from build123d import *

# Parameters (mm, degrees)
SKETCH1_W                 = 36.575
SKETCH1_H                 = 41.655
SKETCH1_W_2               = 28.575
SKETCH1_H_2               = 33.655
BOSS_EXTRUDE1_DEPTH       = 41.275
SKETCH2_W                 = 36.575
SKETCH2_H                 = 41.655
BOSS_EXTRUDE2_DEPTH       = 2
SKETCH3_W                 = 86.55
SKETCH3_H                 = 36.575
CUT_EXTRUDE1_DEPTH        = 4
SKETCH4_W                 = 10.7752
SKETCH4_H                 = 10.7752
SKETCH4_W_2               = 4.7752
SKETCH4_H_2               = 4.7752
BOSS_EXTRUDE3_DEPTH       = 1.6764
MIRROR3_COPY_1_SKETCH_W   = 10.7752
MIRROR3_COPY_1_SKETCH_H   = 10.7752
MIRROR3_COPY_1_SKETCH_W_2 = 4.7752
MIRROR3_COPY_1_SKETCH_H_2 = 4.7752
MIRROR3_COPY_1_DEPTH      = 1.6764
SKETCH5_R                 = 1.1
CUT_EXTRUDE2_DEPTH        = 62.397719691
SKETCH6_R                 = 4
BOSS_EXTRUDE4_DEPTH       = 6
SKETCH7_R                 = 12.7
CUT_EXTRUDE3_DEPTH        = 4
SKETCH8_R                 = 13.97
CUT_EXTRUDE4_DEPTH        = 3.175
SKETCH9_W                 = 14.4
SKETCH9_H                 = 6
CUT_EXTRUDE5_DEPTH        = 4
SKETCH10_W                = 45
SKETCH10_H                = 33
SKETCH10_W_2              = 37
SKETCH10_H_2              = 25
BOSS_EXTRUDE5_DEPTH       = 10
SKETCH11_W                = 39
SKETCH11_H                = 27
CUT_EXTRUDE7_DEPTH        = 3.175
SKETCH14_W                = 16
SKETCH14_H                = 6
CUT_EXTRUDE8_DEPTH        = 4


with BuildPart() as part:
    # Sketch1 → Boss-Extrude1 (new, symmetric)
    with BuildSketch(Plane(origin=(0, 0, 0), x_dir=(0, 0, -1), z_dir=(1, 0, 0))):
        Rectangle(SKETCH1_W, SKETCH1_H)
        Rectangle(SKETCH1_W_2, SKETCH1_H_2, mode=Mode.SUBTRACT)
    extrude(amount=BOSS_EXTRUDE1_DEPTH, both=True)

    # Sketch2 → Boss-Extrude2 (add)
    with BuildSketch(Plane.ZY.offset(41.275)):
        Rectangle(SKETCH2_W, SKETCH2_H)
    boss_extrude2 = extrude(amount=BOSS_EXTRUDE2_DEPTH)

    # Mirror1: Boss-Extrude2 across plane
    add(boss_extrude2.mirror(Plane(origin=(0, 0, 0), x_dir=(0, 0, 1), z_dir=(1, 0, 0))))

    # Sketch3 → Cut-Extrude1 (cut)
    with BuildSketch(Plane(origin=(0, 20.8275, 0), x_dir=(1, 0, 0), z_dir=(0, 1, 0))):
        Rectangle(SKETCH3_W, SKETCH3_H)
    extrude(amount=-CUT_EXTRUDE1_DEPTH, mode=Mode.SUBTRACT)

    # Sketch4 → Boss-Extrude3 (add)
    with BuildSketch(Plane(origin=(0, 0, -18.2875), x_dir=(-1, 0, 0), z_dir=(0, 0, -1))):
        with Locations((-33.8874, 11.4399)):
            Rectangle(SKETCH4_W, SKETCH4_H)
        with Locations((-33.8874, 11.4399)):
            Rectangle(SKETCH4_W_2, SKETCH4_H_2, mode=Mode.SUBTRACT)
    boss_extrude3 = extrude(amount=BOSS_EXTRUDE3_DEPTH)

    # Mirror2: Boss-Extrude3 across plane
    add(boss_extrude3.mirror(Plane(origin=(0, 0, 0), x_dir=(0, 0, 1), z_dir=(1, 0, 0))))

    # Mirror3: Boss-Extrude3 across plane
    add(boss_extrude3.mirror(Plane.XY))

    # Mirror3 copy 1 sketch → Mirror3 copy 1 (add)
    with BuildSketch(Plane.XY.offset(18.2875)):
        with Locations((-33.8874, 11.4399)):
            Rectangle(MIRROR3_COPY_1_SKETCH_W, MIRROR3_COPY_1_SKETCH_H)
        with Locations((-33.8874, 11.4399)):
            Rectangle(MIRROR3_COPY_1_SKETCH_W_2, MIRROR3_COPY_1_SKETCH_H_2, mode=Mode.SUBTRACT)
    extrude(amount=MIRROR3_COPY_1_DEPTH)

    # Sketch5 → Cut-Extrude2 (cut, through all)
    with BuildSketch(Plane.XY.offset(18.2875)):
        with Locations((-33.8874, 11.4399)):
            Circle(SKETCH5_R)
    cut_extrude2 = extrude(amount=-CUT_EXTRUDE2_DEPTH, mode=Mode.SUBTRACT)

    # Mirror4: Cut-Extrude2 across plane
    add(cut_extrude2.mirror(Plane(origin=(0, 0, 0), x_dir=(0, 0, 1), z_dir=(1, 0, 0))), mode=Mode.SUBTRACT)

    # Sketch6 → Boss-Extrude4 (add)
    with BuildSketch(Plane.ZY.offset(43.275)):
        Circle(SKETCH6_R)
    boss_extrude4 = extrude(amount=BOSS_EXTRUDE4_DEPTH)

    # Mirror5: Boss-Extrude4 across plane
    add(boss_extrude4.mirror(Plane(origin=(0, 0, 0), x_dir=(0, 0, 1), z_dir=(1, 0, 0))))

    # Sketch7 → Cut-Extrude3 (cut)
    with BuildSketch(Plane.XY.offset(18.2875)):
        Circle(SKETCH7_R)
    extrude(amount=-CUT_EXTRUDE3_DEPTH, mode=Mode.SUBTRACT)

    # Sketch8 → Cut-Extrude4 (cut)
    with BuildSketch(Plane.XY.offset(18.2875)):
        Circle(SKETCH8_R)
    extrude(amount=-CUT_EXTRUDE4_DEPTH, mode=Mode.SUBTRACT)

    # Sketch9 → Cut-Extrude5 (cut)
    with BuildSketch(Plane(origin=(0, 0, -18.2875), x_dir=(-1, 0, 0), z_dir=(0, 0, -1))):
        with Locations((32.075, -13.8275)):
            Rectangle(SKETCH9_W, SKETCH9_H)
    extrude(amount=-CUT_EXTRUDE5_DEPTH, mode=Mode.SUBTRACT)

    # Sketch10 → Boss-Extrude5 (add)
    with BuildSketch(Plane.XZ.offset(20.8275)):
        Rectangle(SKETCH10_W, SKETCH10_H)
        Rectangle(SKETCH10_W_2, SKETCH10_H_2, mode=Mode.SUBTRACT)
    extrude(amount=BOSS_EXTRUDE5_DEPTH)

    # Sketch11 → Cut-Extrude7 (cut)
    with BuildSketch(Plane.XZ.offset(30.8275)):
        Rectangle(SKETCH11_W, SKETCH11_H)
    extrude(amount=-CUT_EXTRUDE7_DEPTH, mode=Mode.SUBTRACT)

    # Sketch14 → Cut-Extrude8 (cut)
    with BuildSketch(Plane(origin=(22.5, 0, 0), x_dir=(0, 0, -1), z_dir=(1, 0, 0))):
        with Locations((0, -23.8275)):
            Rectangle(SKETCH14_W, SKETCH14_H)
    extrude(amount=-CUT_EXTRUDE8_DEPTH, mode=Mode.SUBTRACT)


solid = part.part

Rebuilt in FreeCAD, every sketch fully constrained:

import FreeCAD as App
import Part
import Sketcher
Q = App.Units.Quantity

doc = App.newDocument("Part")
body = doc.addObject("PartDesign::Body", "Body")

# Sketch on YZ plane
sketch1 = body.newObject("Sketcher::SketchObject", "Sketch")
sketch1.AttachmentSupport = (doc.getObject("YZ_Plane"), [""])
sketch1.MapMode = "FlatFace"
sketch1.addGeometry([
    Part.LineSegment(App.Vector(20.8275, 18.2875, 0), App.Vector(-20.8275, 18.2875, 0)),  # 0
    Part.LineSegment(App.Vector(-20.8275, 18.2875, 0), App.Vector(-20.8275, -18.2875, 0)),  # 1
    Part.LineSegment(App.Vector(-20.8275, -18.2875, 0), App.Vector(20.8275, -18.2875, 0)),  # 2
    Part.LineSegment(App.Vector(20.8275, -18.2875, 0), App.Vector(20.8275, 18.2875, 0)),  # 3
    Part.LineSegment(App.Vector(-16.8275, -14.2875, 0), App.Vector(-16.8275, 14.2875, 0)),  # 4
    Part.LineSegment(App.Vector(-16.8275, 14.2875, 0), App.Vector(16.8275, 14.2875, 0)),  # 5
    Part.LineSegment(App.Vector(16.8275, 14.2875, 0), App.Vector(16.8275, -14.2875, 0)),  # 6
    Part.LineSegment(App.Vector(16.8275, -14.2875, 0), App.Vector(-16.8275, -14.2875, 0)),  # 7
], False)
sketch1.addConstraint([
    Sketcher.Constraint("Coincident", 0, 2, 1, 1),
    Sketcher.Constraint("Coincident", 1, 2, 2, 1),
    Sketcher.Constraint("Coincident", 2, 2, 3, 1),
    Sketcher.Constraint("Coincident", 3, 2, 0, 1),
    Sketcher.Constraint("Coincident", 4, 2, 5, 1),
    Sketcher.Constraint("Coincident", 5, 2, 6, 1),
    Sketcher.Constraint("Coincident", 6, 2, 7, 1),
    Sketcher.Constraint("Coincident", 7, 2, 4, 1),
    Sketcher.Constraint("Horizontal", 0),
    Sketcher.Constraint("Vertical", 1),
    Sketcher.Constraint("Horizontal", 2),
    Sketcher.Constraint("Vertical", 3),
    Sketcher.Constraint("Vertical", 4),
    Sketcher.Constraint("Horizontal", 5),
    Sketcher.Constraint("Vertical", 6),
    Sketcher.Constraint("Horizontal", 7),
    Sketcher.Constraint("Symmetric", 0, 2, 2, 2, -1, 1),
    Sketcher.Constraint("Symmetric", 4, 2, 6, 2, -1, 1),
    Sketcher.Constraint("DistanceX", 0, 2, 4, 2, Q("4 mm")),
    Sketcher.Constraint("DistanceY", 4, 2, 0, 2, Q("4 mm")),
    Sketcher.Constraint("DistanceX", 0, 2, 0, 1, Q("41.655 mm")),
    Sketcher.Constraint("DistanceY", 1, 2, 1, 1, Q("36.575 mm")),
])
pad1 = body.newObject("PartDesign::Pad", "Pad")
pad1.Profile = sketch1
pad1.Length = 82.55
pad1.Midplane = True

# Sketch on YZ plane
sketch2 = body.newObject("Sketcher::SketchObject", "Sketch001")
sketch2.AttachmentSupport = (doc.getObject("YZ_Plane"), [""])
sketch2.MapMode = "FlatFace"
sketch2.AttachmentOffset = App.Placement(App.Vector(0, 0, -41.275), App.Rotation())
sketch2.addGeometry([
    Part.LineSegment(App.Vector(20.8275, -18.2875, 0), App.Vector(-20.8275, -18.2875, 0)),
    Part.LineSegment(App.Vector(-20.8275, -18.2875, 0), App.Vector(-20.8275, 18.2875, 0)),
    Part.LineSegment(App.Vector(-20.8275, 18.2875, 0), App.Vector(20.8275, 18.2875, 0)),
    Part.LineSegment(App.Vector(20.8275, 18.2875, 0), App.Vector(20.8275, -18.2875, 0)),
], False)
sketch2.addConstraint([
    Sketcher.Constraint("Coincident", 0, 2, 1, 1),
    Sketcher.Constraint("Coincident", 1, 2, 2, 1),
    Sketcher.Constraint("Coincident", 2, 2, 3, 1),
    Sketcher.Constraint("Coincident", 3, 2, 0, 1),
    Sketcher.Constraint("Horizontal", 0),
    Sketcher.Constraint("Vertical", 1),
    Sketcher.Constraint("Horizontal", 2),
    Sketcher.Constraint("Vertical", 3),
    Sketcher.Constraint("Symmetric", 0, 2, 2, 2, -1, 1),
    Sketcher.Constraint("DistanceX", 0, 2, 0, 1, Q("41.655 mm")),
    Sketcher.Constraint("DistanceY", 1, 1, 1, 2, Q("36.575 mm")),
])
pad2 = body.newObject("PartDesign::Pad", "Pad001")
pad2.Profile = sketch2
pad2.Length = 2
pad2.Reversed = True
doc.recompute()

mirrored = body.newObject("PartDesign::Mirrored", "Mirrored")
mirrored.Originals = [pad2]
mirrored.MirrorPlane = (doc.getObject("YZ_Plane"), [""])
body.Tip = mirrored

# Sketch on XZ plane
sketch3 = body.newObject("Sketcher::SketchObject", "Sketch002")
sketch3.AttachmentSupport = (doc.getObject("XZ_Plane"), [""])
sketch3.MapMode = "FlatFace"
sketch3.AttachmentOffset = App.Placement(App.Vector(0, 0, -20.8275), App.Rotation())
sketch3.addGeometry([
    Part.LineSegment(App.Vector(-43.275, -18.2875, 0), App.Vector(-43.275, 18.2875, 0)),
    Part.LineSegment(App.Vector(-43.275, 18.2875, 0), App.Vector(43.275, 18.2875, 0)),
    Part.LineSegment(App.Vector(43.275, 18.2875, 0), App.Vector(43.275, -18.2875, 0)),
    Part.LineSegment(App.Vector(43.275, -18.2875, 0), App.Vector(-43.275, -18.2875, 0)),
], False)
sketch3.addConstraint([
    Sketcher.Constraint("Coincident", 0, 2, 1, 1),
    Sketcher.Constraint("Coincident", 1, 2, 2, 1),
    Sketcher.Constraint("Coincident", 2, 2, 3, 1),
    Sketcher.Constraint("Coincident", 3, 2, 0, 1),
    Sketcher.Constraint("Vertical", 0),
    Sketcher.Constraint("Horizontal", 1),
    Sketcher.Constraint("Vertical", 2),
    Sketcher.Constraint("Horizontal", 3),
    Sketcher.Constraint("Symmetric", 0, 2, 2, 2, -1, 1),
    Sketcher.Constraint("DistanceX", 1, 1, 1, 2, Q("86.55 mm")),
    Sketcher.Constraint("DistanceY", 0, 1, 0, 2, Q("36.575 mm")),
])
pocket1 = body.newObject("PartDesign::Pocket", "Pocket")
pocket1.Profile = sketch3
pocket1.Length = 4
pocket1.Reversed = True

# Sketch on XY plane
sketch4 = body.newObject("Sketcher::SketchObject", "Sketch003")
sketch4.AttachmentSupport = (doc.getObject("XY_Plane"), [""])
sketch4.MapMode = "FlatFace"
sketch4.AttachmentOffset = App.Placement(App.Vector(0, 0, -18.2875), App.Rotation())
sketch4.addGeometry([
    Part.LineSegment(App.Vector(39.275, 16.8275, 0), App.Vector(39.275, 6.0523, 0)),  # 0
    Part.LineSegment(App.Vector(39.275, 6.0523, 0), App.Vector(28.4998, 6.0523, 0)),  # 1
    Part.LineSegment(App.Vector(28.4998, 6.0523, 0), App.Vector(28.4998, 16.8275, 0)),  # 2
    Part.LineSegment(App.Vector(28.4998, 16.8275, 0), App.Vector(39.275, 16.8275, 0)),  # 3
    Part.LineSegment(App.Vector(31.4998, 9.0523, 0), App.Vector(36.275, 9.0523, 0)),  # 4
    Part.LineSegment(App.Vector(36.275, 9.0523, 0), App.Vector(36.275, 13.8275, 0)),  # 5
    Part.LineSegment(App.Vector(36.275, 13.8275, 0), App.Vector(31.4998, 13.8275, 0)),  # 6
    Part.LineSegment(App.Vector(31.4998, 13.8275, 0), App.Vector(31.4998, 9.0523, 0)),  # 7
], False)
sketch4.addConstraint([
    Sketcher.Constraint("Coincident", 0, 2, 1, 1),
    Sketcher.Constraint("Coincident", 1, 2, 2, 1),
    Sketcher.Constraint("Coincident", 2, 2, 3, 1),
    Sketcher.Constraint("Coincident", 3, 2, 0, 1),
    Sketcher.Constraint("Coincident", 4, 2, 5, 1),
    Sketcher.Constraint("Coincident", 5, 2, 6, 1),
    Sketcher.Constraint("Coincident", 6, 2, 7, 1),
    Sketcher.Constraint("Coincident", 7, 2, 4, 1),
    Sketcher.Constraint("Vertical", 0),
    Sketcher.Constraint("Horizontal", 1),
    Sketcher.Constraint("Vertical", 2),
    Sketcher.Constraint("Horizontal", 3),
    Sketcher.Constraint("Horizontal", 4),
    Sketcher.Constraint("Vertical", 5),
    Sketcher.Constraint("Horizontal", 6),
    Sketcher.Constraint("Vertical", 7),
    Sketcher.Constraint("Equal", 3, 0),
    Sketcher.Constraint("Equal", 6, 5),
    Sketcher.Constraint("DistanceX", 4, 2, 0, 2, Q("3 mm")),
    Sketcher.Constraint("DistanceY", 0, 2, 4, 2, Q("3 mm")),
    Sketcher.Constraint("DistanceY", 5, 2, 3, 2, Q("3 mm")),
    Sketcher.Constraint("DistanceX", 1, 2, 1, 1, Q("10.7752 mm")),
    Sketcher.Constraint("DistanceX", -1, 1, 0, 2, Q("39.275 mm")),
    Sketcher.Constraint("DistanceY", -1, 1, 0, 2, Q("6.0523 mm")),
])
pad3 = body.newObject("PartDesign::Pad", "Pad002")
pad3.Profile = sketch4
pad3.Length = 1.6764
pad3.Reversed = True
doc.recompute()

mirrored2 = body.newObject("PartDesign::Mirrored", "Mirrored001")
mirrored2.Originals = [pad3]
mirrored2.MirrorPlane = (doc.getObject("YZ_Plane"), [""])
body.Tip = mirrored2
doc.recompute()

mirrored3 = body.newObject("PartDesign::Mirrored", "Mirrored002")
mirrored3.Originals = [pad3]
mirrored3.MirrorPlane = (doc.getObject("XY_Plane"), [""])
body.Tip = mirrored3

# Sketch on XY plane
sketch5 = body.newObject("Sketcher::SketchObject", "Sketch004")
sketch5.AttachmentSupport = (doc.getObject("XY_Plane"), [""])
sketch5.MapMode = "FlatFace"
sketch5.AttachmentOffset = App.Placement(App.Vector(0, 0, 18.2875), App.Rotation())
sketch5.addGeometry([
    Part.LineSegment(App.Vector(-39.275, 16.8275, 0), App.Vector(-39.275, 6.0523, 0)),  # 0
    Part.LineSegment(App.Vector(-39.275, 6.0523, 0), App.Vector(-28.4998, 6.0523, 0)),  # 1
    Part.LineSegment(App.Vector(-28.4998, 6.0523, 0), App.Vector(-28.4998, 16.8275, 0)),  # 2
    Part.LineSegment(App.Vector(-28.4998, 16.8275, 0), App.Vector(-39.275, 16.8275, 0)),  # 3
    Part.LineSegment(App.Vector(-31.4998, 9.0523, 0), App.Vector(-36.275, 9.0523, 0)),  # 4
    Part.LineSegment(App.Vector(-36.275, 9.0523, 0), App.Vector(-36.275, 13.8275, 0)),  # 5
    Part.LineSegment(App.Vector(-36.275, 13.8275, 0), App.Vector(-31.4998, 13.8275, 0)),  # 6
    Part.LineSegment(App.Vector(-31.4998, 13.8275, 0), App.Vector(-31.4998, 9.0523, 0)),  # 7
], False)
sketch5.addConstraint([
    Sketcher.Constraint("Coincident", 0, 2, 1, 1),
    Sketcher.Constraint("Coincident", 1, 2, 2, 1),
    Sketcher.Constraint("Coincident", 2, 2, 3, 1),
    Sketcher.Constraint("Coincident", 3, 2, 0, 1),
    Sketcher.Constraint("Coincident", 4, 2, 5, 1),
    Sketcher.Constraint("Coincident", 5, 2, 6, 1),
    Sketcher.Constraint("Coincident", 6, 2, 7, 1),
    Sketcher.Constraint("Coincident", 7, 2, 4, 1),
    Sketcher.Constraint("Vertical", 0),
    Sketcher.Constraint("Horizontal", 1),
    Sketcher.Constraint("Vertical", 2),
    Sketcher.Constraint("Horizontal", 3),
    Sketcher.Constraint("Horizontal", 4),
    Sketcher.Constraint("Vertical", 5),
    Sketcher.Constraint("Horizontal", 6),
    Sketcher.Constraint("Vertical", 7),
    Sketcher.Constraint("Equal", 3, 0),
    Sketcher.Constraint("Equal", 6, 5),
    Sketcher.Constraint("DistanceX", 0, 2, 4, 2, Q("3 mm")),
    Sketcher.Constraint("DistanceY", 0, 2, 4, 2, Q("3 mm")),
    Sketcher.Constraint("DistanceY", 5, 2, 3, 2, Q("3 mm")),
    Sketcher.Constraint("DistanceX", 1, 1, 1, 2, Q("10.7752 mm")),
    Sketcher.Constraint("DistanceX", 0, 2, -1, 1, Q("39.275 mm")),
    Sketcher.Constraint("DistanceY", -1, 1, 0, 2, Q("6.0523 mm")),
])
pad4 = body.newObject("PartDesign::Pad", "Pad003")
pad4.Profile = sketch5
pad4.Length = 1.6764

# Sketch on XY plane
sketch6 = body.newObject("Sketcher::SketchObject", "Sketch005")
sketch6.AttachmentSupport = (doc.getObject("XY_Plane"), [""])
sketch6.MapMode = "FlatFace"
sketch6.AttachmentOffset = App.Placement(App.Vector(0, 0, 18.2875), App.Rotation())
sketch6.addGeometry(Part.Circle(App.Vector(-33.8874, 11.4399, 0), App.Vector(0, 0, 1), 1.1), False)
sketch6.addConstraint([
    Sketcher.Constraint("Diameter", 0, Q("2.2 mm")),
    Sketcher.Constraint("DistanceX", 0, 3, -1, 1, Q("33.8874 mm")),
    Sketcher.Constraint("DistanceY", -1, 1, 0, 3, Q("11.4399 mm")),
])
pocket2 = body.newObject("PartDesign::Pocket", "Pocket001")
pocket2.Profile = sketch6
pocket2.Type = "ThroughAll"
doc.recompute()

mirrored4 = body.newObject("PartDesign::Mirrored", "Mirrored003")
mirrored4.Originals = [pocket2]
mirrored4.MirrorPlane = (doc.getObject("YZ_Plane"), [""])
body.Tip = mirrored4

# Sketch on YZ plane
sketch7 = body.newObject("Sketcher::SketchObject", "Sketch006")
sketch7.AttachmentSupport = (doc.getObject("YZ_Plane"), [""])
sketch7.MapMode = "FlatFace"
sketch7.AttachmentOffset = App.Placement(App.Vector(0, 0, -43.275), App.Rotation())
sketch7.addGeometry(Part.Circle(App.Vector(0, 0, 0), App.Vector(0, 0, 1), 4), False)
sketch7.addConstraint([
    Sketcher.Constraint("Coincident", 0, 3, -1, 1),
    Sketcher.Constraint("Diameter", 0, Q("8 mm")),
])
pad5 = body.newObject("PartDesign::Pad", "Pad004")
pad5.Profile = sketch7
pad5.Length = 6
pad5.Reversed = True
doc.recompute()

mirrored5 = body.newObject("PartDesign::Mirrored", "Mirrored004")
mirrored5.Originals = [pad5]
mirrored5.MirrorPlane = (doc.getObject("YZ_Plane"), [""])
body.Tip = mirrored5

# Sketch on XY plane
sketch8 = body.newObject("Sketcher::SketchObject", "Sketch007")
sketch8.AttachmentSupport = (doc.getObject("XY_Plane"), [""])
sketch8.MapMode = "FlatFace"
sketch8.AttachmentOffset = App.Placement(App.Vector(0, 0, 18.2875), App.Rotation())
sketch8.addGeometry(Part.Circle(App.Vector(0, 0, 0), App.Vector(0, 0, 1), 12.7), False)
sketch8.addConstraint([
    Sketcher.Constraint("Coincident", 0, 3, -1, 1),
    Sketcher.Constraint("Diameter", 0, Q("25.4 mm")),
])
pocket3 = body.newObject("PartDesign::Pocket", "Pocket002")
pocket3.Profile = sketch8
pocket3.Length = 4

# Sketch on XY plane
sketch9 = body.newObject("Sketcher::SketchObject", "Sketch008")
sketch9.AttachmentSupport = (doc.getObject("XY_Plane"), [""])
sketch9.MapMode = "FlatFace"
sketch9.AttachmentOffset = App.Placement(App.Vector(0, 0, 18.2875), App.Rotation())
sketch9.addGeometry(Part.Circle(App.Vector(0, 0, 0), App.Vector(0, 0, 1), 13.97), False)
sketch9.addConstraint([
    Sketcher.Constraint("Coincident", 0, 3, -1, 1),
    Sketcher.Constraint("Diameter", 0, Q("27.94 mm")),
])
pocket4 = body.newObject("PartDesign::Pocket", "Pocket003")
pocket4.Profile = sketch9
pocket4.Length = 3.175

# Sketch on XY plane
sketch10 = body.newObject("Sketcher::SketchObject", "Sketch009")
sketch10.AttachmentSupport = (doc.getObject("XY_Plane"), [""])
sketch10.MapMode = "FlatFace"
sketch10.AttachmentOffset = App.Placement(App.Vector(0, 0, -18.2875), App.Rotation())
sketch10.addGeometry([
    Part.LineSegment(App.Vector(-24.875, -10.8275, 0), App.Vector(-24.875, -16.8275, 0)),
    Part.LineSegment(App.Vector(-24.875, -16.8275, 0), App.Vector(-39.275, -16.8275, 0)),
    Part.LineSegment(App.Vector(-39.275, -16.8275, 0), App.Vector(-39.275, -10.8275, 0)),
    Part.LineSegment(App.Vector(-39.275, -10.8275, 0), App.Vector(-24.875, -10.8275, 0)),
], False)
sketch10.addConstraint([
    Sketcher.Constraint("Coincident", 0, 2, 1, 1),
    Sketcher.Constraint("Coincident", 1, 2, 2, 1),
    Sketcher.Constraint("Coincident", 2, 2, 3, 1),
    Sketcher.Constraint("Coincident", 3, 2, 0, 1),
    Sketcher.Constraint("Vertical", 0),
    Sketcher.Constraint("Horizontal", 1),
    Sketcher.Constraint("Vertical", 2),
    Sketcher.Constraint("Horizontal", 3),
    Sketcher.Constraint("DistanceY", 0, 2, 0, 1, Q("6 mm")),
    Sketcher.Constraint("DistanceX", 1, 2, 1, 1, Q("14.4 mm")),
    Sketcher.Constraint("DistanceX", 0, 2, -1, 1, Q("24.875 mm")),
    Sketcher.Constraint("DistanceY", 0, 2, -1, 1, Q("16.8275 mm")),
])
pocket5 = body.newObject("PartDesign::Pocket", "Pocket004")
pocket5.Profile = sketch10
pocket5.Length = 4
pocket5.Reversed = True

# Sketch on XZ plane
sketch11 = body.newObject("Sketcher::SketchObject", "Sketch010")
sketch11.AttachmentSupport = (doc.getObject("XZ_Plane"), [""])
sketch11.MapMode = "FlatFace"
sketch11.AttachmentOffset = App.Placement(App.Vector(0, 0, 20.8275), App.Rotation())
sketch11.addGeometry([
    Part.LineSegment(App.Vector(-22.5, 16.5, 0), App.Vector(-22.5, -16.5, 0)),  # 0
    Part.LineSegment(App.Vector(-22.5, -16.5, 0), App.Vector(22.5, -16.5, 0)),  # 1
    Part.LineSegment(App.Vector(22.5, -16.5, 0), App.Vector(22.5, 16.5, 0)),  # 2
    Part.LineSegment(App.Vector(22.5, 16.5, 0), App.Vector(-22.5, 16.5, 0)),  # 3
    Part.LineSegment(App.Vector(18.5, -12.5, 0), App.Vector(-18.5, -12.5, 0)),  # 4
    Part.LineSegment(App.Vector(-18.5, -12.5, 0), App.Vector(-18.5, 12.5, 0)),  # 5
    Part.LineSegment(App.Vector(-18.5, 12.5, 0), App.Vector(18.5, 12.5, 0)),  # 6
    Part.LineSegment(App.Vector(18.5, 12.5, 0), App.Vector(18.5, -12.5, 0)),  # 7
], False)
sketch11.addConstraint([
    Sketcher.Constraint("Coincident", 0, 2, 1, 1),
    Sketcher.Constraint("Coincident", 1, 2, 2, 1),
    Sketcher.Constraint("Coincident", 2, 2, 3, 1),
    Sketcher.Constraint("Coincident", 3, 2, 0, 1),
    Sketcher.Constraint("Coincident", 4, 2, 5, 1),
    Sketcher.Constraint("Coincident", 5, 2, 6, 1),
    Sketcher.Constraint("Coincident", 6, 2, 7, 1),
    Sketcher.Constraint("Coincident", 7, 2, 4, 1),
    Sketcher.Constraint("Vertical", 0),
    Sketcher.Constraint("Horizontal", 1),
    Sketcher.Constraint("Vertical", 2),
    Sketcher.Constraint("Horizontal", 3),
    Sketcher.Constraint("Horizontal", 4),
    Sketcher.Constraint("Vertical", 5),
    Sketcher.Constraint("Horizontal", 6),
    Sketcher.Constraint("Vertical", 7),
    Sketcher.Constraint("Symmetric", 0, 2, 2, 2, -1, 1),
    Sketcher.Constraint("Symmetric", 4, 2, 6, 2, -1, 1),
    Sketcher.Constraint("DistanceX", 1, 1, 1, 2, Q("45 mm")),
    Sketcher.Constraint("DistanceX", 4, 2, 4, 1, Q("37 mm")),
    Sketcher.Constraint("DistanceY", 0, 2, 0, 1, Q("33 mm")),
    Sketcher.Constraint("DistanceY", 5, 1, 5, 2, Q("25 mm")),
])
pad6 = body.newObject("PartDesign::Pad", "Pad005")
pad6.Profile = sketch11
pad6.Length = 10

# Sketch on XZ plane
sketch12 = body.newObject("Sketcher::SketchObject", "Sketch011")
sketch12.AttachmentSupport = (doc.getObject("XZ_Plane"), [""])
sketch12.MapMode = "FlatFace"
sketch12.AttachmentOffset = App.Placement(App.Vector(0, 0, 30.8275), App.Rotation())
sketch12.addGeometry([
    Part.LineSegment(App.Vector(-19.5, 13.5, 0), App.Vector(-19.5, -13.5, 0)),
    Part.LineSegment(App.Vector(-19.5, -13.5, 0), App.Vector(19.5, -13.5, 0)),
    Part.LineSegment(App.Vector(19.5, -13.5, 0), App.Vector(19.5, 13.5, 0)),
    Part.LineSegment(App.Vector(19.5, 13.5, 0), App.Vector(-19.5, 13.5, 0)),
], False)
sketch12.addConstraint([
    Sketcher.Constraint("Coincident", 0, 2, 1, 1),
    Sketcher.Constraint("Coincident", 1, 2, 2, 1),
    Sketcher.Constraint("Coincident", 2, 2, 3, 1),
    Sketcher.Constraint("Coincident", 3, 2, 0, 1),
    Sketcher.Constraint("Vertical", 0),
    Sketcher.Constraint("Horizontal", 1),
    Sketcher.Constraint("Vertical", 2),
    Sketcher.Constraint("Horizontal", 3),
    Sketcher.Constraint("Symmetric", 0, 2, 2, 2, -1, 1),
    Sketcher.Constraint("DistanceX", 1, 1, 1, 2, Q("39 mm")),
    Sketcher.Constraint("DistanceY", 0, 2, 0, 1, Q("27 mm")),
])
pocket6 = body.newObject("PartDesign::Pocket", "Pocket005")
pocket6.Profile = sketch12
pocket6.Length = 3.175

# Sketch on YZ plane
sketch13 = body.newObject("Sketcher::SketchObject", "Sketch012")
sketch13.AttachmentSupport = (doc.getObject("YZ_Plane"), [""])
sketch13.MapMode = "FlatFace"
sketch13.AttachmentOffset = App.Placement(App.Vector(0, 0, 22.5), App.Rotation())
sketch13.addGeometry([
    Part.LineSegment(App.Vector(-20.8275, 8, 0), App.Vector(-26.8275, 8, 0)),
    Part.LineSegment(App.Vector(-26.8275, 8, 0), App.Vector(-26.8275, -8, 0)),
    Part.LineSegment(App.Vector(-26.8275, -8, 0), App.Vector(-20.8275, -8, 0)),
    Part.LineSegment(App.Vector(-20.8275, -8, 0), App.Vector(-20.8275, 8, 0)),
], False)
sketch13.addConstraint([
    Sketcher.Constraint("Coincident", 0, 2, 1, 1),
    Sketcher.Constraint("Coincident", 1, 2, 2, 1),
    Sketcher.Constraint("Coincident", 2, 2, 3, 1),
    Sketcher.Constraint("Coincident", 3, 2, 0, 1),
    Sketcher.Constraint("Horizontal", 0),
    Sketcher.Constraint("Vertical", 1),
    Sketcher.Constraint("Horizontal", 2),
    Sketcher.Constraint("Vertical", 3),
    Sketcher.Constraint("DistanceX", 0, 2, 0, 1, Q("6 mm")),
    Sketcher.Constraint("DistanceY", 1, 2, 1, 1, Q("16 mm")),
    Sketcher.Constraint("DistanceY", -1, 1, 0, 2, Q("8 mm")),
    Sketcher.Constraint("DistanceX", 0, 2, -1, 1, Q("26.8275 mm")),
])
pocket7 = body.newObject("PartDesign::Pocket", "Pocket006")
pocket7.Profile = sketch13
pocket7.Length = 4

doc.recompute()
